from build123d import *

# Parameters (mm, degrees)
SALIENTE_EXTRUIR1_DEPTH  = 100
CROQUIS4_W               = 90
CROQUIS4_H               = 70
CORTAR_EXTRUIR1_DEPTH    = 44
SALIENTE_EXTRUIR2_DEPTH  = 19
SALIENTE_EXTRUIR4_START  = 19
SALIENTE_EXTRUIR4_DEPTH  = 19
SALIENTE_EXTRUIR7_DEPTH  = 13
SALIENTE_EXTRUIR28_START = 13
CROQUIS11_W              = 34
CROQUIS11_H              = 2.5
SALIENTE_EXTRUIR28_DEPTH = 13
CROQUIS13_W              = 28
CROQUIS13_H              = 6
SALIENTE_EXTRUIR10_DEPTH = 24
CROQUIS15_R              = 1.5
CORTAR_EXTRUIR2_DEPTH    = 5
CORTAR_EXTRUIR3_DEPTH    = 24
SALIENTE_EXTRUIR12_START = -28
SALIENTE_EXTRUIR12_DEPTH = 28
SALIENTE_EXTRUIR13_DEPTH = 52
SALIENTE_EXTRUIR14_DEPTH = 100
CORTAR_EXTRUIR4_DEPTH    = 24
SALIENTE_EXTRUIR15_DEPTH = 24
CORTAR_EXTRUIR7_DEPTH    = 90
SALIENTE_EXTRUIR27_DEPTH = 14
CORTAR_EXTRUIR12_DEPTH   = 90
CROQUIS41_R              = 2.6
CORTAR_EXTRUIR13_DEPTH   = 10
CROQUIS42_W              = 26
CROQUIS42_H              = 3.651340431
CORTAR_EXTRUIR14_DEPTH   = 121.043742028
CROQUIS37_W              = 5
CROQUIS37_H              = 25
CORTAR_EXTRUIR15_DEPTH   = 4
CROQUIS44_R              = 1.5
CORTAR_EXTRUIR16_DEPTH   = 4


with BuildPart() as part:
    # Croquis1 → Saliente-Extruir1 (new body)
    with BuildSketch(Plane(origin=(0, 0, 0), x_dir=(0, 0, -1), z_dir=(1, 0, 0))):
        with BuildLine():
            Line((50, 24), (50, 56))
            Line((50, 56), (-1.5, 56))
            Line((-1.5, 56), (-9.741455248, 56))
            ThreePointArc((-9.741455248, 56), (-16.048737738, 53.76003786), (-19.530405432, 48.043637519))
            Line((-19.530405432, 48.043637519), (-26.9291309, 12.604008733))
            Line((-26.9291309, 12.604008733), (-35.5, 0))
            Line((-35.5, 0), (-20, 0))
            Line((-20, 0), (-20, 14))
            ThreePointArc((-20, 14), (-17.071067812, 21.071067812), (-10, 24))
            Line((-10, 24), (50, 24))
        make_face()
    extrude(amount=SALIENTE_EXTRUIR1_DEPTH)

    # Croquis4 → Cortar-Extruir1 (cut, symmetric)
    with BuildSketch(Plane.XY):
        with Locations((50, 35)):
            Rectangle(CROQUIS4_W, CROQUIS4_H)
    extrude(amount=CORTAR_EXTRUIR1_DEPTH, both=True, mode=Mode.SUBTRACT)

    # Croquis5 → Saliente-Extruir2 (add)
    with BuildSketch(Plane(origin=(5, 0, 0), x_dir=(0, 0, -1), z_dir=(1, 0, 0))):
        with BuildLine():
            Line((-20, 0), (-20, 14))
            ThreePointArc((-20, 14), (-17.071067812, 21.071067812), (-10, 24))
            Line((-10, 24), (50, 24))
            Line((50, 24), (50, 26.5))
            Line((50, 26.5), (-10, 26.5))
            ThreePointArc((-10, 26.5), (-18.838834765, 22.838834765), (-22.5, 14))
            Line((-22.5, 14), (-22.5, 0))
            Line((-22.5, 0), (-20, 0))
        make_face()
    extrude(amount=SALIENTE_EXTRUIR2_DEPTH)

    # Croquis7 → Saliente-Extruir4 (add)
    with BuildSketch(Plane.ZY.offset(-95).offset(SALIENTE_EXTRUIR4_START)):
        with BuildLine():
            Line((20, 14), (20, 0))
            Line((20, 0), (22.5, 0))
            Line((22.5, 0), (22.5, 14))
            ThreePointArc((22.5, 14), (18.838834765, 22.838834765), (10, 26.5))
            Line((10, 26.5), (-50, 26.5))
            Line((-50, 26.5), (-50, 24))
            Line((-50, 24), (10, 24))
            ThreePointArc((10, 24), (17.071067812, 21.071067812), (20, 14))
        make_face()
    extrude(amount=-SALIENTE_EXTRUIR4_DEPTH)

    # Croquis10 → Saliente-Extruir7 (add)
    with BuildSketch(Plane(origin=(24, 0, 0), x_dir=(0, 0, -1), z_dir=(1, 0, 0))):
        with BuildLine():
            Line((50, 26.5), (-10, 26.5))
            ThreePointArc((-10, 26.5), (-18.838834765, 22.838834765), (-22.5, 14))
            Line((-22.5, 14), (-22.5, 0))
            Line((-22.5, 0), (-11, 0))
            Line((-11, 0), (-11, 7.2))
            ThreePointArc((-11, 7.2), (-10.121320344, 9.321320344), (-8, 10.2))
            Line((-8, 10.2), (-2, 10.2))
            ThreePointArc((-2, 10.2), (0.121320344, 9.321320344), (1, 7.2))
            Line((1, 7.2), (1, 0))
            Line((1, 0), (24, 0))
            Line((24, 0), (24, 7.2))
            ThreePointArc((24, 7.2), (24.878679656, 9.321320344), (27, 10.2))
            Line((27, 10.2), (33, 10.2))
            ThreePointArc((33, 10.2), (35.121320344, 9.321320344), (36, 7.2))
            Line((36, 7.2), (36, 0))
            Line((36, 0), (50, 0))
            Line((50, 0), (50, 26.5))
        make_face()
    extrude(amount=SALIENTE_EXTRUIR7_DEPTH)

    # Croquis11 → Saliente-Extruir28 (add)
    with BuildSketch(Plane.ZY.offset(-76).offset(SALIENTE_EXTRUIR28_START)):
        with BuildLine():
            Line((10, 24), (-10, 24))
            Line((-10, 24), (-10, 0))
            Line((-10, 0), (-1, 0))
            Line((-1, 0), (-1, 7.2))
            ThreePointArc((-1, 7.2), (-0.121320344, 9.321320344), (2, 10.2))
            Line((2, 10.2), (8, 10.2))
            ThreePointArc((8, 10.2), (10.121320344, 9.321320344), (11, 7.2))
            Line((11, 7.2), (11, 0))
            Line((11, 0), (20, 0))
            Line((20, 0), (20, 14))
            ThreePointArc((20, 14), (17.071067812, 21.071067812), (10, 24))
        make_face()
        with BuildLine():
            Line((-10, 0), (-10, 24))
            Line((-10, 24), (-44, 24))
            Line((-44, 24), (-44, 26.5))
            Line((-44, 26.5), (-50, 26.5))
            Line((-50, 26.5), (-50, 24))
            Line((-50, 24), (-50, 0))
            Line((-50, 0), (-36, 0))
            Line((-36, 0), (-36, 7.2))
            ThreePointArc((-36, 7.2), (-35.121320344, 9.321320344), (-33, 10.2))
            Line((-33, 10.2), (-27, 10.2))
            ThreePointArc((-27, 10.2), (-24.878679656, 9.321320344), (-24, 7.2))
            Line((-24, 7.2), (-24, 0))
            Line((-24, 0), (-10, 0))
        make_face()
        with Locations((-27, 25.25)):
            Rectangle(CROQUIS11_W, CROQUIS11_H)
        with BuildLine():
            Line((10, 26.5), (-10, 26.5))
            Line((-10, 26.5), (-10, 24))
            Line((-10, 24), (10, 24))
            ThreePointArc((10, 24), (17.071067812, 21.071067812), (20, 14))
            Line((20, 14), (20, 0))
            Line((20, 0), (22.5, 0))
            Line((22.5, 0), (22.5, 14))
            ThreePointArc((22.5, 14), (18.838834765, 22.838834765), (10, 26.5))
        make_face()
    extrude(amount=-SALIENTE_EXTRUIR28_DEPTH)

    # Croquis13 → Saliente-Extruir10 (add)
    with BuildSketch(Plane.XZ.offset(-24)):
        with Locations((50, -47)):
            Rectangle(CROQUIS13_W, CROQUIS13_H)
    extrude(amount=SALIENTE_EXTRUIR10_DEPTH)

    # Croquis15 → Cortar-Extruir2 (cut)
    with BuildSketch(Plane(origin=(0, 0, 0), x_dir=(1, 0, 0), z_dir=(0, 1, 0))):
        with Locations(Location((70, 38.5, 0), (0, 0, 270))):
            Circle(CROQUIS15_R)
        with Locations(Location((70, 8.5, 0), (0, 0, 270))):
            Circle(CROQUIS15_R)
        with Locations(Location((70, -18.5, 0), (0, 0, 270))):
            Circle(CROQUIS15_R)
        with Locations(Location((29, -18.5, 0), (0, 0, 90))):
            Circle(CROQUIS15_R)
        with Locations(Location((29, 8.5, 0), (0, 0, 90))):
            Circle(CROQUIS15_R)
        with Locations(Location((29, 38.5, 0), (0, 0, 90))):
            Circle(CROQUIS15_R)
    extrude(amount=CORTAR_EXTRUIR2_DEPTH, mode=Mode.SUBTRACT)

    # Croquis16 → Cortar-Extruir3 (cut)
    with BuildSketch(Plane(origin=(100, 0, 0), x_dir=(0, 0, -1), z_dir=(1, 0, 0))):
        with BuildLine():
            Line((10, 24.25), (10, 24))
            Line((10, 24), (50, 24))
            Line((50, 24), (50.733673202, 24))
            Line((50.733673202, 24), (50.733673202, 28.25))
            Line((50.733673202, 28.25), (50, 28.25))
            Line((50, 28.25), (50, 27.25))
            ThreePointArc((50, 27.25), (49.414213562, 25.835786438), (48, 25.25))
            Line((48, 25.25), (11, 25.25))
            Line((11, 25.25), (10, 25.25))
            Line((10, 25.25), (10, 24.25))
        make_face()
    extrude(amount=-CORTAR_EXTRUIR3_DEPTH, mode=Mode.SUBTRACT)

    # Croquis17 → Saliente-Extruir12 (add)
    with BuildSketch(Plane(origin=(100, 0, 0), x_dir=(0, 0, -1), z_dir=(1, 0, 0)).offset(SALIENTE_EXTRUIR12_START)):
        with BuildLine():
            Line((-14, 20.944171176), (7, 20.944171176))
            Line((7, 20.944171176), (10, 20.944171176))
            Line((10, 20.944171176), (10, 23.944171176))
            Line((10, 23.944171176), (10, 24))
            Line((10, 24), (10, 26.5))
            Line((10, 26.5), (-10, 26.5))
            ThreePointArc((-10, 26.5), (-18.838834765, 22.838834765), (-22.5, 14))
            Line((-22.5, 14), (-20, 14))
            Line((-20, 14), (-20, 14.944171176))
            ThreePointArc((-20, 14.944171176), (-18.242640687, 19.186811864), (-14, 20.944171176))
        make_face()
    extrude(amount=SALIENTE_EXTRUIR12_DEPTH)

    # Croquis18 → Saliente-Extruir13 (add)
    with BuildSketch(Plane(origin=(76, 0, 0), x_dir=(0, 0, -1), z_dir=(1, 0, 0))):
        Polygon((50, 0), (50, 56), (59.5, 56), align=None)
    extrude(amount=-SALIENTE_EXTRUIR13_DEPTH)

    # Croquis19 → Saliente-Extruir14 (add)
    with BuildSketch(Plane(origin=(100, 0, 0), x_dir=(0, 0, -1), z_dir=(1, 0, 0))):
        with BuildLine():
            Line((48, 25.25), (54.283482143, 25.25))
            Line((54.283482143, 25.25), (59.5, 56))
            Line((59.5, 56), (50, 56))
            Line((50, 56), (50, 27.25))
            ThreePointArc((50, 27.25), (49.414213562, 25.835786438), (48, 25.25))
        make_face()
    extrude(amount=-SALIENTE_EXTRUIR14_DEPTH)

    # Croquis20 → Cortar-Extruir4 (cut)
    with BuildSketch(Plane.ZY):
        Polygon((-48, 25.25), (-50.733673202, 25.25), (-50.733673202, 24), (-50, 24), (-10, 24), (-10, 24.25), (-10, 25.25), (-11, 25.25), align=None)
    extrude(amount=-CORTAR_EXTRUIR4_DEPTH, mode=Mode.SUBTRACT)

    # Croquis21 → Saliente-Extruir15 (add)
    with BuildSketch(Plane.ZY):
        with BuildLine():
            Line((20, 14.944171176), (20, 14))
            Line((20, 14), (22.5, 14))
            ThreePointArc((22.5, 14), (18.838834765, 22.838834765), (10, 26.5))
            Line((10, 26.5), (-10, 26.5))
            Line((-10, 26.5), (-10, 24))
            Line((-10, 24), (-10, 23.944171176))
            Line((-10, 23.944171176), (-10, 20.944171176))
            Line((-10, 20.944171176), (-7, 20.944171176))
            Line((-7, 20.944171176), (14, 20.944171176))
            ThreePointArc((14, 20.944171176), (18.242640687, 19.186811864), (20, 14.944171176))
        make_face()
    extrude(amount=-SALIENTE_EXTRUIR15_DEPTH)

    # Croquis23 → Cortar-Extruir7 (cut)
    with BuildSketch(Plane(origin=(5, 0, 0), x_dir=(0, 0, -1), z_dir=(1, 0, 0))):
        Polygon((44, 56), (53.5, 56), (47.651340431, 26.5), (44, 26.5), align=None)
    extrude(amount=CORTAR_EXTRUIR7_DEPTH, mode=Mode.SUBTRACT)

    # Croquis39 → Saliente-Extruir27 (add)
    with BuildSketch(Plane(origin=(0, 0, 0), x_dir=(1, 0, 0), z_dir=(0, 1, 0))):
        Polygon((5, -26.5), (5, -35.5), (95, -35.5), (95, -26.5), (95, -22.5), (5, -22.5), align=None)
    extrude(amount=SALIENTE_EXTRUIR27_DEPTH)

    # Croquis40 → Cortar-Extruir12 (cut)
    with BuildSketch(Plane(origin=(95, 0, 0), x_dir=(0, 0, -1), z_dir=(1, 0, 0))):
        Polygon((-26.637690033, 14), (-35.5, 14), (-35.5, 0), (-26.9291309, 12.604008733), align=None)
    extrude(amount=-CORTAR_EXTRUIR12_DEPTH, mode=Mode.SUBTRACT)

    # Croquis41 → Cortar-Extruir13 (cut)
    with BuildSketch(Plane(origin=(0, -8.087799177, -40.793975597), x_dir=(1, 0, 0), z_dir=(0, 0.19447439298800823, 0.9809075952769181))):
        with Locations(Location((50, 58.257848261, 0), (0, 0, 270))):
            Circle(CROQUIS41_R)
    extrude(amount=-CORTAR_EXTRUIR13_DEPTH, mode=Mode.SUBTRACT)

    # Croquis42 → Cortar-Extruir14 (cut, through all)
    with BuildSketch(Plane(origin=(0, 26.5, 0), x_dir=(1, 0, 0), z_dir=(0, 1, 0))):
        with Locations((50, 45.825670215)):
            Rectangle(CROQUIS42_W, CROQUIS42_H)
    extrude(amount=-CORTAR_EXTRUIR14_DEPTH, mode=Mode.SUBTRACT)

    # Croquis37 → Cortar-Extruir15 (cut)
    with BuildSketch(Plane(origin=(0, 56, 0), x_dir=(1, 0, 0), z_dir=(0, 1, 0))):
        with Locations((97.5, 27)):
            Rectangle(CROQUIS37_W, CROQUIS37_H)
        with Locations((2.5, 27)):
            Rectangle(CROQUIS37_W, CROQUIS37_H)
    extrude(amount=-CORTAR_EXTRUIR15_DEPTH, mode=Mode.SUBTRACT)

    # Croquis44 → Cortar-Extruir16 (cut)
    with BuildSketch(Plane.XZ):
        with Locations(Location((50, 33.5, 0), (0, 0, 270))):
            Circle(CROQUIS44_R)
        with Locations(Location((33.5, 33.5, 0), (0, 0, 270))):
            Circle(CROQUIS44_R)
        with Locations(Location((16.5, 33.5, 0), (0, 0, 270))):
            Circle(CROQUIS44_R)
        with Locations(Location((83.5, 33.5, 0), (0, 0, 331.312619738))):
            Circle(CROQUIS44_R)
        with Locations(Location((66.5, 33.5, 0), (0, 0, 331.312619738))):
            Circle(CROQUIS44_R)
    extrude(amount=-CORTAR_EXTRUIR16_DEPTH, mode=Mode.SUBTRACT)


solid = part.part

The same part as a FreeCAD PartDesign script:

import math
import FreeCAD as App
import Part
import Sketcher

V = App.Vector


def add_polygon(sketch, points):
    """Adds a closed chain of lines whose ends are joined by coincident constraints."""
    first, n = sketch.GeometryCount, len(points)
    for a, b in zip(points, points[1:] + points[:1]):
        sketch.addGeometry(Part.LineSegment(App.Vector(*a, 0), App.Vector(*b, 0)), False)
    for i in range(n):
        sketch.addConstraint(Sketcher.Constraint("Coincident", first + i, 2, first + (i + 1) % n, 1))

doc = App.newDocument("Part")
body = doc.addObject("PartDesign::Body", "Body")

# Sketch on YZ plane
sketch1 = body.newObject("Sketcher::SketchObject", "Sketch")
sketch1.AttachmentSupport = (doc.getObject("YZ_Plane"), [""])
sketch1.MapMode = "FlatFace"
sketch1.addGeometry(Part.LineSegment(V(24, -50, 0), V(56, -50, 0)), False)
sketch1.addGeometry(Part.LineSegment(V(56, -50, 0), V(56, 10, 0)), False)
sketch1.addGeometry(Part.ArcOfCircle(Part.Circle(V(46, 10, 0), V(0, 0, 1), 10), math.radians(0), math.radians(78)), False)
sketch1.addGeometry(Part.LineSegment(V(48, 20, 0), V(13, 27, 0)), False)
sketch1.addGeometry(Part.LineSegment(V(13, 27, 0), V(0, 36, 0)), False)
sketch1.addGeometry(Part.LineSegment(V(0, 36, 0), V(0, 20, 0)), False)
sketch1.addGeometry(Part.LineSegment(V(0, 20, 0), V(14, 20, 0)), False)
sketch1.addGeometry(Part.ArcOfCircle(Part.Circle(V(14, 10, 0), V(0, 0, 1), 10), math.radians(0), math.radians(90)), False)
sketch1.addGeometry(Part.LineSegment(V(24, 10, 0), V(24, -50, 0)), False)
sketch1.addConstraint(Sketcher.Constraint("Coincident", 0, 2, 1, 1))
sketch1.addConstraint(Sketcher.Constraint("Tangent", 1, 2, 2, 1))
sketch1.addConstraint(Sketcher.Constraint("Tangent", 2, 2, 3, 1))
sketch1.addConstraint(Sketcher.Constraint("Coincident", 3, 2, 4, 1))
sketch1.addConstraint(Sketcher.Constraint("Coincident", 4, 2, 5, 1))
sketch1.addConstraint(Sketcher.Constraint("Coincident", 5, 2, 6, 1))
sketch1.addConstraint(Sketcher.Constraint("Tangent", 6, 2, 7, 2))
sketch1.addConstraint(Sketcher.Constraint("Tangent", 7, 1, 8, 1))
sketch1.addConstraint(Sketcher.Constraint("Coincident", 8, 2, 0, 1))
sketch1.addConstraint(Sketcher.Constraint("Horizontal", 0))
sketch1.addConstraint(Sketcher.Constraint("Vertical", 1))
sketch1.addConstraint(Sketcher.Constraint("Vertical", 5))
sketch1.addConstraint(Sketcher.Constraint("Horizontal", 6))
sketch1.addConstraint(Sketcher.Constraint("Vertical", 8))
sketch1.addConstraint(Sketcher.Constraint("Equal", 2, 7))
sketch1.addConstraint(Sketcher.Constraint("PointOnObject", 4, 2, -2))
sketch1.addConstraint(Sketcher.Constraint("Radius", 2, 10.0))
sketch1.addConstraint(Sketcher.Constraint("DistanceX", 0, 1, 0, 2, 32.0))
sketch1.addConstraint(Sketcher.Constraint("DistanceX", 6, 1, 6, 2, 14.0))
sketch1.addConstraint(Sketcher.Constraint("DistanceY", 8, 2, 8, 1, 60.0))
sketch1.addConstraint(Sketcher.Constraint("DistanceY", 5, 2, 5, 1, 15.5))
sketch1.addConstraint(Sketcher.Constraint("DistanceY", -1, 1, 7, 3, 10.0))
sketch1.addConstraint(Sketcher.Constraint("DistanceY", 1, 1, 1, 2, 59.741455))
sketch1.addConstraint(Sketcher.Constraint("DistanceX", -1, 1, 3, 2, 12.604009))
sketch1.addConstraint(Sketcher.Constraint("DistanceY", -1, 1, 3, 2, 26.929131))
pad1 = body.newObject("PartDesign::Pad", "Pad")
pad1.Profile = sketch1
pad1.Length = 100

# Sketch on XY plane
sketch2 = body.newObject("Sketcher::SketchObject", "Sketch001")
sketch2.AttachmentSupport = (doc.getObject("XY_Plane"), [""])
sketch2.MapMode = "FlatFace"
add_polygon(sketch2, [(5, 70), (5, 0), (95, 0), (95, 70)])  # lines 0-3
sketch2.addConstraint(Sketcher.Constraint("Vertical", 0))
sketch2.addConstraint(Sketcher.Constraint("Horizontal", 1))
sketch2.addConstraint(Sketcher.Constraint("Vertical", 2))
sketch2.addConstraint(Sketcher.Constraint("Horizontal", 3))
sketch2.addConstraint(Sketcher.Constraint("PointOnObject", 0, 2, -1))
sketch2.addConstraint(Sketcher.Constraint("DistanceX", 1, 1, 1, 2, 90.0))
sketch2.addConstraint(Sketcher.Constraint("DistanceY", 0, 2, 0, 1, 70.0))
sketch2.addConstraint(Sketcher.Constraint("DistanceX", -1, 1, 0, 2, 5.0))
pocket1 = body.newObject("PartDesign::Pocket", "Pocket")
pocket1.Profile = sketch2
pocket1.Length = 88
pocket1.Midplane = True

# Sketch on YZ plane
sketch3 = body.newObject("Sketcher::SketchObject", "Sketch002")
sketch3.AttachmentSupport = (doc.getObject("YZ_Plane"), [""])
sketch3.MapMode = "FlatFace"
sketch3.AttachmentOffset = App.Placement(V(0, 0, 5), App.Rotation())
sketch3.addGeometry(Part.LineSegment(V(0, 20, 0), V(14, 20, 0)), False)
sketch3.addGeometry(Part.ArcOfCircle(Part.Circle(V(14, 10, 0), V(0, 0, 1), 10), math.radians(0), math.radians(90)), False)
sketch3.addGeometry(Part.LineSegment(V(24, 10, 0), V(24, -50, 0)), False)
sketch3.addGeometry(Part.LineSegment(V(24, -50, 0), V(26.5, -50, 0)), False)
sketch3.addGeometry(Part.LineSegment(V(26.5, -50, 0), V(26.5, 10, 0)), False)
sketch3.addGeometry(Part.ArcOfCircle(Part.Circle(V(14, 10, 0), V(0, 0, 1), 12.5), math.radians(0), math.radians(90)), False)
sketch3.addGeometry(Part.LineSegment(V(14, 22.5, 0), V(0, 22.5, 0)), False)
sketch3.addGeometry(Part.LineSegment(V(0, 22.5, 0), V(0, 20, 0)), False)
sketch3.addConstraint(Sketcher.Constraint("Tangent", 0, 2, 1, 2))
sketch3.addConstraint(Sketcher.Constraint("Tangent", 1, 1, 2, 1))
sketch3.addConstraint(Sketcher.Constraint("Coincident", 2, 2, 3, 1))
sketch3.addConstraint(Sketcher.Constraint("Coincident", 3, 2, 4, 1))
sketch3.addConstraint(Sketcher.Constraint("Tangent", 4, 2, 5, 1))
sketch3.addConstraint(Sketcher.Constraint("Tangent", 5, 2, 6, 1))
sketch3.addConstraint(Sketcher.Constraint("Coincident", 6, 2, 7, 1))
sketch3.addConstraint(Sketcher.Constraint("Coincident", 7, 2, 0, 1))
sketch3.addConstraint(Sketcher.Constraint("Horizontal", 0))
sketch3.addConstraint(Sketcher.Constraint("Vertical", 2))
sketch3.addConstraint(Sketcher.Constraint("Horizontal", 3))
sketch3.addConstraint(Sketcher.Constraint("Vertical", 4))
sketch3.addConstraint(Sketcher.Constraint("Horizontal", 6))
sketch3.addConstraint(Sketcher.Constraint("Vertical", 7))
sketch3.addConstraint(Sketcher.Constraint("Coincident", 5, 3, 1, 3))
sketch3.addConstraint(Sketcher.Constraint("PointOnObject", 6, 2, -2))
sketch3.addConstraint(Sketcher.Constraint("Radius", 1, 10.0))
sketch3.addConstraint(Sketcher.Constraint("Radius", 5, 12.5))
sketch3.addConstraint(Sketcher.Constraint("DistanceX", 0, 1, 0, 2, 14.0))
sketch3.addConstraint(Sketcher.Constraint("DistanceY", 2, 2, 2, 1, 60.0))
sketch3.addConstraint(Sketcher.Constraint("DistanceY", -1, 1, 1, 3, 10.0))
pad2 = body.newObject("PartDesign::Pad", "Pad001")
pad2.Profile = sketch3
pad2.Length = 19

# Sketch on YZ plane
sketch4 = body.newObject("Sketcher::SketchObject", "Sketch003")
sketch4.AttachmentSupport = (doc.getObject("YZ_Plane"), [""])
sketch4.MapMode = "FlatFace"
sketch4.AttachmentOffset = App.Placement(V(0, 0, 76), App.Rotation())
sketch4.addGeometry(Part.LineSegment(V(14, 20, 0), V(0, 20, 0)), False)
sketch4.addGeometry(Part.LineSegment(V(0, 20, 0), V(0, 22.5, 0)), False)
sketch4.addGeometry(Part.LineSegment(V(0, 22.5, 0), V(14, 22.5, 0)), False)
sketch4.addGeometry(Part.ArcOfCircle(Part.Circle(V(14, 10, 0), V(0, 0, 1), 12.5), math.radians(0), math.radians(90)), False)
sketch4.addGeometry(Part.LineSegment(V(26.5, 10, 0), V(26.5, -50, 0)), False)
sketch4.addGeometry(Part.LineSegment(V(26.5, -50, 0), V(24, -50, 0)), False)
sketch4.addGeometry(Part.LineSegment(V(24, -50, 0), V(24, 10, 0)), False)
sketch4.addGeometry(Part.ArcOfCircle(Part.Circle(V(14, 10, 0), V(0, 0, 1), 10), math.radians(0), math.radians(90)), False)
sketch4.addConstraint(Sketcher.Constraint("Coincident", 0, 2, 1, 1))
sketch4.addConstraint(Sketcher.Constraint("Coincident", 1, 2, 2, 1))
sketch4.addConstraint(Sketcher.Constraint("Tangent", 2, 2, 3, 2))
sketch4.addConstraint(Sketcher.Constraint("Tangent", 3, 1, 4, 1))
sketch4.addConstraint(Sketcher.Constraint("Coincident", 4, 2, 5, 1))
sketch4.addConstraint(Sketcher.Constraint("Coincident", 5, 2, 6, 1))
sketch4.addConstraint(Sketcher.Constraint("Tangent", 6, 2, 7, 1))
sketch4.addConstraint(Sketcher.Constraint("Tangent", 7, 2, 0, 1))
sketch4.addConstraint(Sketcher.Constraint("Horizontal", 0))
sketch4.addConstraint(Sketcher.Constraint("Vertical", 1))
sketch4.addConstraint(Sketcher.Constraint("Horizontal", 2))
sketch4.addConstraint(Sketcher.Constraint("Vertical", 4))
sketch4.addConstraint(Sketcher.Constraint("Horizontal", 5))
sketch4.addConstraint(Sketcher.Constraint("Vertical", 6))
sketch4.addConstraint(Sketcher.Constraint("Coincident", 7, 3, 3, 3))
sketch4.addConstraint(Sketcher.Constraint("PointOnObject", 0, 2, -2))
sketch4.addConstraint(Sketcher.Constraint("Radius", 7, 10.0))
sketch4.addConstraint(Sketcher.Constraint("Radius", 3, 12.5))
sketch4.addConstraint(Sketcher.Constraint("DistanceX", 0, 2, 0, 1, 14.0))
sketch4.addConstraint(Sketcher.Constraint("DistanceY", 4, 2, 4, 1, 60.0))
sketch4.addConstraint(Sketcher.Constraint("DistanceY", -1, 1, 3, 3, 10.0))
pad3 = body.newObject("PartDesign::Pad", "Pad002")
pad3.Profile = sketch4
pad3.Length = 19

# Sketch on YZ plane
sketch5 = body.newObject("Sketcher::SketchObject", "Sketch004")
sketch5.AttachmentSupport = (doc.getObject("YZ_Plane"), [""])
sketch5.MapMode = "FlatFace"
sketch5.AttachmentOffset = App.Placement(V(0, 0, 24), App.Rotation())
sketch5.addGeometry(Part.LineSegment(V(26.5, -50, 0), V(26.5, 10, 0)), False)
sketch5.addGeometry(Part.ArcOfCircle(Part.Circle(V(14, 10, 0), V(0, 0, 1), 12.5), math.radians(0), math.radians(90)), False)
sketch5.addGeometry(Part.LineSegment(V(14, 22.5, 0), V(0, 22.5, 0)), False)
sketch5.addGeometry(Part.LineSegment(V(0, 22.5, 0), V(0, 11, 0)), False)
sketch5.addGeometry(Part.LineSegment(V(0, 11, 0), V(7.2, 11, 0)), False)
sketch5.addGeometry(Part.ArcOfCircle(Part.Circle(V(7.2, 8, 0), V(0, 0, 1), 3), math.radians(0), math.radians(90)), False)
sketch5.addGeometry(Part.LineSegment(V(10.2, 8, 0), V(10.2, 2, 0)), False)
sketch5.addGeometry(Part.ArcOfCircle(Part.Circle(V(7.2, 2, 0), V(0, 0, 1), 3), math.radians(-90), math.radians(0)), False)
sketch5.addGeometry(Part.LineSegment(V(7.2, -1, 0), V(0, -1, 0)), False)
sketch5.addGeometry(Part.LineSegment(V(0, -1, 0), V(0, -24, 0)), False)
sketch5.addGeometry(Part.LineSegment(V(0, -24, 0), V(7.2, -24, 0)), False)
sketch5.addGeometry(Part.ArcOfCircle(Part.Circle(V(7.2, -27, 0), V(0, 0, 1), 3), math.radians(0), math.radians(90)), False)
sketch5.addGeometry(Part.LineSegment(V(10.2, -27, 0), V(10.2, -33, 0)), False)
sketch5.addGeometry(Part.ArcOfCircle(Part.Circle(V(7.2, -33, 0), V(0, 0, 1), 3), math.radians(-90), math.radians(0)), False)
sketch5.addGeometry(Part.LineSegment(V(7.2, -36, 0), V(0, -36, 0)), False)
sketch5.addGeometry(Part.LineSegment(V(0, -36, 0), V(0, -50, 0)), False)
sketch5.addGeometry(Part.LineSegment(V(0, -50, 0), V(26.5, -50, 0)), False)
sketch5.addConstraint(Sketcher.Constraint("Tangent", 0, 2, 1, 1))
sketch5.addConstraint(Sketcher.Constraint("Tangent", 1, 2, 2, 1))
sketch5.addConstraint(Sketcher.Constraint("Coincident", 2, 2, 3, 1))
sketch5.addConstraint(Sketcher.Constraint("Coincident", 3, 2, 4, 1))
sketch5.addConstraint(Sketcher.Constraint("Tangent", 4, 2, 5, 2))
sketch5.addConstraint(Sketcher.Constraint("Tangent", 5, 1, 6, 1))
sketch5.addConstraint(Sketcher.Constraint("Tangent", 6, 2, 7, 2))
sketch5.addConstraint(Sketcher.Constraint("Tangent", 7, 1, 8, 1))
sketch5.addConstraint(Sketcher.Constraint("Coincident", 8, 2, 9, 1))
sketch5.addConstraint(Sketcher.Constraint("Coincident", 9, 2, 10, 1))
sketch5.addConstraint(Sketcher.Constraint("Tangent", 10, 2, 11, 2))
sketch5.addConstraint(Sketcher.Constraint("Tangent", 11, 1, 12, 1))
sketch5.addConstraint(Sketcher.Constraint("Tangent", 12, 2, 13, 2))
sketch5.addConstraint(Sketcher.Constraint("Tangent", 13, 1, 14, 1))
sketch5.addConstraint(Sketcher.Constraint("Coincident", 14, 2, 15, 1))
sketch5.addConstraint(Sketcher.Constraint("Coincident", 15, 2, 16, 1))
sketch5.addConstraint(Sketcher.Constraint("Coincident", 16, 2, 0, 1))
sketch5.addConstraint(Sketcher.Constraint("Vertical", 0))
sketch5.addConstraint(Sketcher.Constraint("Horizontal", 2))
sketch5.addConstraint(Sketcher.Constraint("Vertical", 3))
sketch5.addConstraint(Sketcher.Constraint("Horizontal", 4))
sketch5.addConstraint(Sketcher.Constraint("Vertical", 6))
sketch5.addConstraint(Sketcher.Constraint("Horizontal", 8))
sketch5.addConstraint(Sketcher.Constraint("Vertical", 9))
sketch5.addConstraint(Sketcher.Constraint("Horizontal", 10))
sketch5.addConstraint(Sketcher.Constraint("Vertical", 12))
sketch5.addConstraint(Sketcher.Constraint("Horizontal", 14))
sketch5.addConstraint(Sketcher.Constraint("Vertical", 15))
sketch5.addConstraint(Sketcher.Constraint("Horizontal", 16))
sketch5.addConstraint(Sketcher.Constraint("Equal", 5, 7))
sketch5.addConstraint(Sketcher.Constraint("Equal", 7, 11))
sketch5.addConstraint(Sketcher.Constraint("Equal", 11, 13))
sketch5.addConstraint(Sketcher.Constraint("PointOnObject", 2, 2, -2))
sketch5.addConstraint(Sketcher.Constraint("PointOnObject", 8, 2, -2))
sketch5.addConstraint(Sketcher.Constraint("PointOnObject", 14, 2, -2))
sketch5.addConstraint(Sketcher.Constraint("Vertical", 7, 3, 11, 3))
sketch5.addConstraint(Sketcher.Constraint("Equal", 6, 12))
sketch5.addConstraint(Sketcher.Constraint("Equal", 2, 15))
sketch5.addConstraint(Sketcher.Constraint("Radius", 5, 3.0))
sketch5.addConstraint(Sketcher.Constraint("Radius", 1, 12.5))
sketch5.addConstraint(Sketcher.Constraint("DistanceX", 2, 2, 2, 1, 14.0))
sketch5.addConstraint(Sketcher.Constraint("DistanceY", 0, 1, 0, 2, 60.0))
sketch5.addConstraint(Sketcher.Constraint("DistanceY", 6, 2, 6, 1, 6.0))
sketch5.addConstraint(Sketcher.Constraint("DistanceY", 9, 2, 9, 1, 23.0))
sketch5.addConstraint(Sketcher.Constraint("DistanceX", 4, 1, 4, 2, 7.2))
sketch5.addConstraint(Sketcher.Constraint("DistanceY", -1, 1, 1, 3, 10.0))
pad4 = body.newObject("PartDesign::Pad", "Pad003")
pad4.Profile = sketch5
pad4.Length = 13

# Sketch on YZ plane
sketch6 = body.newObject("Sketcher::SketchObject", "Sketch005")
sketch6.AttachmentSupport = (doc.getObject("YZ_Plane"), [""])
sketch6.MapMode = "FlatFace"
sketch6.AttachmentOffset = App.Placement(V(0, 0, 63), App.Rotation())
sketch6.addGeometry(Part.LineSegment(V(26.5, -50, 0), V(0, -50, 0)), False)
sketch6.addGeometry(Part.LineSegment(V(0, -50, 0), V(0, -36, 0)), False)
sketch6.addGeometry(Part.LineSegment(V(0, -36, 0), V(7.2, -36, 0)), False)
sketch6.addGeometry(Part.ArcOfCircle(Part.Circle(V(7.2, -33, 0), V(0, 0, 1), 3), math.radians(-90), math.radians(0)), False)
sketch6.addGeometry(Part.LineSegment(V(10.2, -33, 0), V(10.2, -27, 0)), False)
sketch6.addGeometry(Part.ArcOfCircle(Part.Circle(V(7.2, -27, 0), V(0, 0, 1), 3), math.radians(0), math.radians(90)), False)
sketch6.addGeometry(Part.LineSegment(V(7.2, -24, 0), V(0, -24, 0)), False)
sketch6.addGeometry(Part.LineSegment(V(0, -24, 0), V(0, -1, 0)), False)
sketch6.addGeometry(Part.LineSegment(V(0, -1, 0), V(7.2, -1, 0)), False)
sketch6.addGeometry(Part.ArcOfCircle(Part.Circle(V(7.2, 2, 0), V(0, 0, 1), 3), math.radians(-90), math.radians(0)), False)
sketch6.addGeometry(Part.LineSegment(V(10.2, 2, 0), V(10.2, 8, 0)), False)
sketch6.addGeometry(Part.ArcOfCircle(Part.Circle(V(7.2, 8, 0), V(0, 0, 1), 3), math.radians(0), math.radians(90)), False)
sketch6.addGeometry(Part.LineSegment(V(7.2, 11, 0), V(0, 11, 0)), False)
sketch6.addGeometry(Part.LineSegment(V(0, 11, 0), V(0, 22.5, 0)), False)
sketch6.addGeometry(Part.LineSegment(V(0, 22.5, 0), V(14, 22.5, 0)), False)
sketch6.addGeometry(Part.ArcOfCircle(Part.Circle(V(14, 10, 0), V(0, 0, 1), 12.5), math.radians(0), math.radians(90)), False)
sketch6.addGeometry(Part.LineSegment(V(26.5, 10, 0), V(26.5, -50, 0)), False)
sketch6.addConstraint(Sketcher.Constraint("Coincident", 0, 2, 1, 1))
sketch6.addConstraint(Sketcher.Constraint("Coincident", 1, 2, 2, 1))
sketch6.addConstraint(Sketcher.Constraint("Tangent", 2, 2, 3, 1))
sketch6.addConstraint(Sketcher.Constraint("Tangent", 3, 2, 4, 1))
sketch6.addConstraint(Sketcher.Constraint("Tangent", 4, 2, 5, 1))
sketch6.addConstraint(Sketcher.Constraint("Tangent", 5, 2, 6, 1))
sketch6.addConstraint(Sketcher.Constraint("Coincident", 6, 2, 7, 1))
sketch6.addConstraint(Sketcher.Constraint("Coincident", 7, 2, 8, 1))
sketch6.addConstraint(Sketcher.Constraint("Tangent", 8, 2, 9, 1))
sketch6.addConstraint(Sketcher.Constraint("Tangent", 9, 2, 10, 1))
sketch6.addConstraint(Sketcher.Constraint("Tangent", 10, 2, 11, 1))
sketch6.addConstraint(Sketcher.Constraint("Tangent", 11, 2, 12, 1))
sketch6.addConstraint(Sketcher.Constraint("Coincident", 12, 2, 13, 1))
sketch6.addConstraint(Sketcher.Constraint("Coincident", 13, 2, 14, 1))
sketch6.addConstraint(Sketcher.Constraint("Tangent", 14, 2, 15, 2))
sketch6.addConstraint(Sketcher.Constraint("Tangent", 15, 1, 16, 1))
sketch6.addConstraint(Sketcher.Constraint("Coincident", 16, 2, 0, 1))
sketch6.addConstraint(Sketcher.Constraint("Horizontal", 0))
sketch6.addConstraint(Sketcher.Constraint("Vertical", 1))
sketch6.addConstraint(Sketcher.Constraint("Horizontal", 2))
sketch6.addConstraint(Sketcher.Constraint("Vertical", 4))
sketch6.addConstraint(Sketcher.Constraint("Horizontal", 6))
sketch6.addConstraint(Sketcher.Constraint("Vertical", 7))
sketch6.addConstraint(Sketcher.Constraint("Horizontal", 8))
sketch6.addConstraint(Sketcher.Constraint("Vertical", 10))
sketch6.addConstraint(Sketcher.Constraint("Horizontal", 12))
sketch6.addConstraint(Sketcher.Constraint("Vertical", 13))
sketch6.addConstraint(Sketcher.Constraint("Horizontal", 14))
sketch6.addConstraint(Sketcher.Constraint("Vertical", 16))
sketch6.addConstraint(Sketcher.Constraint("Equal", 3, 5))
sketch6.addConstraint(Sketcher.Constraint("Equal", 5, 9))
sketch6.addConstraint(Sketcher.Constraint("Equal", 9, 11))
sketch6.addConstraint(Sketcher.Constraint("PointOnObject", 0, 2, -2))
sketch6.addConstraint(Sketcher.Constraint("PointOnObject", 6, 2, -2))
sketch6.addConstraint(Sketcher.Constraint("PointOnObject", 12, 2, -2))
sketch6.addConstraint(Sketcher.Constraint("Vertical", 5, 3, 9, 3))
sketch6.addConstraint(Sketcher.Constraint("Equal", 14, 1))
sketch6.addConstraint(Sketcher.Constraint("Equal", 4, 10))
sketch6.addConstraint(Sketcher.Constraint("Radius", 3, 3.0))
sketch6.addConstraint(Sketcher.Constraint("Radius", 15, 12.5))
sketch6.addConstraint(Sketcher.Constraint("DistanceX", 14, 1, 14, 2, 14.0))
sketch6.addConstraint(Sketcher.Constraint("DistanceY", 4, 1, 4, 2, 6.0))
sketch6.addConstraint(Sketcher.Constraint("DistanceY", 7, 1, 7, 2, 23.0))
sketch6.addConstraint(Sketcher.Constraint("DistanceY", 16, 2, 16, 1, 60.0))
sketch6.addConstraint(Sketcher.Constraint("DistanceX", 2, 1, 2, 2, 7.2))
sketch6.addConstraint(Sketcher.Constraint("DistanceY", 3, 3, -1, 1, 33.0))
pad5 = body.newObject("PartDesign::Pad", "Pad004")
pad5.Profile = sketch6
pad5.Length = 13

# Sketch on XZ plane
sketch7 = body.newObject("Sketcher::SketchObject", "Sketch006")
sketch7.AttachmentSupport = (doc.getObject("XZ_Plane"), [""])
sketch7.MapMode = "FlatFace"
sketch7.AttachmentOffset = App.Placement(V(0, 0, -24), App.Rotation())
add_polygon(sketch7, [(36, -44), (36, -50), (64, -50), (64, -44)])  # lines 0-3
sketch7.addConstraint(Sketcher.Constraint("Vertical", 0))
sketch7.addConstraint(Sketcher.Constraint("Horizontal", 1))
sketch7.addConstraint(Sketcher.Constraint("Vertical", 2))
sketch7.addConstraint(Sketcher.Constraint("Horizontal", 3))
sketch7.addConstraint(Sketcher.Constraint("DistanceX", 1, 1, 1, 2, 28.0))
sketch7.addConstraint(Sketcher.Constraint("DistanceY", 0, 2, 0, 1, 6.0))
sketch7.addConstraint(Sketcher.Constraint("DistanceX", -1, 1, 0, 2, 36.0))
sketch7.addConstraint(Sketcher.Constraint("DistanceY", 0, 2, -1, 1, 50.0))
pad6 = body.newObject("PartDesign::Pad", "Pad005")
pad6.Profile = sketch7
pad6.Length = 24

# Sketch on XZ plane
sketch8 = body.newObject("Sketcher::SketchObject", "Sketch007")
sketch8.AttachmentSupport = (doc.getObject("XZ_Plane"), [""])
sketch8.MapMode = "FlatFace"
sketch8.addGeometry(Part.Circle(V(70, -38.5, 0), V(0, 0, 1), 1.5), False)
sketch8.addGeometry(Part.Circle(V(70, -8.5, 0), V(0, 0, 1), 1.5), False)
sketch8.addGeometry(Part.Circle(V(70, 18.5, 0), V(0, 0, 1), 1.5), False)
sketch8.addGeometry(Part.Circle(V(29, 18.5, 0), V(0, 0, 1), 1.5), False)
sketch8.addGeometry(Part.Circle(V(29, -8.5, 0), V(0, 0, 1), 1.5), False)
sketch8.addGeometry(Part.Circle(V(29, -38.5, 0), V(0, 0, 1), 1.5), False)
sketch8.addConstraint(Sketcher.Constraint("Equal", 0, 1))
sketch8.addConstraint(Sketcher.Constraint("Equal", 1, 2))
sketch8.addConstraint(Sketcher.Constraint("Equal", 2, 3))
sketch8.addConstraint(Sketcher.Constraint("Equal", 3, 4))
sketch8.addConstraint(Sketcher.Constraint("Equal", 4, 5))
sketch8.addConstraint(Sketcher.Constraint("Horizontal", 2, 3, 3, 3))
sketch8.addConstraint(Sketcher.Constraint("Horizontal", 1, 3, 4, 3))
sketch8.addConstraint(Sketcher.Constraint("Horizontal", 0, 3, 5, 3))
sketch8.addConstraint(Sketcher.Constraint("Vertical", 0, 3, 1, 3))
sketch8.addConstraint(Sketcher.Constraint("Vertical", 1, 3, 2, 3))
sketch8.addConstraint(Sketcher.Constraint("Vertical", 3, 3, 4, 3))
sketch8.addConstraint(Sketcher.Constraint("Vertical", 4, 3, 5, 3))
sketch8.addConstraint(Sketcher.Constraint("Diameter", 0, 3.0))
sketch8.addConstraint(Sketcher.Constraint("DistanceX", -1, 1, 0, 3, 70.0))
sketch8.addConstraint(Sketcher.Constraint("DistanceX", -1, 1, 3, 3, 29.0))
sketch8.addConstraint(Sketcher.Constraint("DistanceY", 0, 3, 1, 3, 30.0))
sketch8.addConstraint(Sketcher.Constraint("DistanceY", 1, 3, 2, 3, 27.0))
sketch8.addConstraint(Sketcher.Constraint("DistanceY", 0, 3, -1, 1, 38.5))
pocket2 = body.newObject("PartDesign::Pocket", "Pocket001")
pocket2.Profile = sketch8
pocket2.Length = 5

# Sketch on YZ plane
sketch9 = body.newObject("Sketcher::SketchObject", "Sketch008")
sketch9.AttachmentSupport = (doc.getObject("YZ_Plane"), [""])
sketch9.MapMode = "FlatFace"
sketch9.AttachmentOffset = App.Placement(V(0, 0, 100), App.Rotation())
sketch9.addGeometry(Part.LineSegment(V(24, -10, 0), V(24, -50.7, 0)), False)
sketch9.addGeometry(Part.LineSegment(V(24, -50.7, 0), V(28.2, -50.7, 0)), False)
sketch9.addGeometry(Part.LineSegment(V(28.2, -50.7, 0), V(28.2, -50, 0)), False)
sketch9.addGeometry(Part.LineSegment(V(28.2, -50, 0), V(27.2, -50, 0)), False)
sketch9.addGeometry(Part.ArcOfCircle(Part.Circle(V(27.3, -48, 0), V(0, 0, 1), 2), math.radians(-180), math.radians(-90)), False)
sketch9.addGeometry(Part.LineSegment(V(25.2, -48, 0), V(25.2, -10, 0)), False)
sketch9.addGeometry(Part.LineSegment(V(25.2, -10, 0), V(24, -10, 0)), False)
sketch9.addConstraint(Sketcher.Constraint("Coincident", 0, 2, 1, 1))
sketch9.addConstraint(Sketcher.Constraint("Coincident", 1, 2, 2, 1))
sketch9.addConstraint(Sketcher.Constraint("Coincident", 2, 2, 3, 1))
sketch9.addConstraint(Sketcher.Constraint("Tangent", 3, 2, 4, 2))
sketch9.addConstraint(Sketcher.Constraint("Tangent", 4, 1, 5, 1))
sketch9.addConstraint(Sketcher.Constraint("Coincident", 5, 2, 6, 1))
sketch9.addConstraint(Sketcher.Constraint("Coincident", 6, 2, 0, 1))
sketch9.addConstraint(Sketcher.Constraint("Vertical", 0))
sketch9.addConstraint(Sketcher.Constraint("Horizontal", 1))
sketch9.addConstraint(Sketcher.Constraint("Vertical", 2))
sketch9.addConstraint(Sketcher.Constraint("Horizontal", 3))
sketch9.addConstraint(Sketcher.Constraint("Vertical", 5))
sketch9.addConstraint(Sketcher.Constraint("Horizontal", 6))
sketch9.addConstraint(Sketcher.Constraint("Radius", 4, 2.0))
sketch9.addConstraint(Sketcher.Constraint("DistanceX", 3, 2, 3, 1, 1.0))
sketch9.addConstraint(Sketcher.Constraint("DistanceY", 5, 1, 5, 2, 38.0))
sketch9.addConstraint(Sketcher.Constraint("DistanceY", 4, 3, -1, 1, 48.0))
sketch9.addConstraint(Sketcher.Constraint("DistanceX", -1, 1, 0, 2, 24.0))
sketch9.addConstraint(Sketcher.Constraint("DistanceX", 1, 1, 1, 2, 4.25))
sketch9.addConstraint(Sketcher.Constraint("DistanceY", 0, 2, 0, 1, 40.733673))
pocket3 = body.newObject("PartDesign::Pocket", "Pocket002")
pocket3.Profile = sketch9
pocket3.Length = 24

# Sketch on YZ plane
sketch10 = body.newObject("Sketcher::SketchObject", "Sketch009")
sketch10.AttachmentSupport = (doc.getObject("YZ_Plane"), [""])
sketch10.MapMode = "FlatFace"
sketch10.AttachmentOffset = App.Placement(V(0, 0, 72), App.Rotation())
sketch10.addGeometry(Part.LineSegment(V(20.9, 14, 0), V(20.9, -10, 0)), False)
sketch10.addGeometry(Part.LineSegment(V(20.9, -10, 0), V(26.5, -10, 0)), False)
sketch10.addGeometry(Part.LineSegment(V(26.5, -10, 0), V(26.5, 10, 0)), False)
sketch10.addGeometry(Part.ArcOfCircle(Part.Circle(V(14, 10, 0), V(0, 0, 1), 12.5), math.radians(0), math.radians(90)), False)
sketch10.addGeometry(Part.LineSegment(V(14, 22.5, 0), V(14, 20, 0)), False)
sketch10.addGeometry(Part.LineSegment(V(14, 20, 0), V(14.9, 20, 0)), False)
sketch10.addGeometry(Part.ArcOfCircle(Part.Circle(V(14.9, 14, 0), V(0, 0, 1), 6), math.radians(0), math.radians(90)), False)
sketch10.addConstraint(Sketcher.Constraint("Coincident", 0, 2, 1, 1))
sketch10.addConstraint(Sketcher.Constraint("Coincident", 1, 2, 2, 1))
sketch10.addConstraint(Sketcher.Constraint("Tangent", 2, 2, 3, 1))
sketch10.addConstraint(Sketcher.Constraint("Coincident", 3, 2, 4, 1))
sketch10.addConstraint(Sketcher.Constraint("Coincident", 4, 2, 5, 1))
sketch10.addConstraint(Sketcher.Constraint("Tangent", 5, 2, 6, 2))
sketch10.addConstraint(Sketcher.Constraint("Tangent", 6, 1, 0, 1))
sketch10.addConstraint(Sketcher.Constraint("Vertical", 0))
sketch10.addConstraint(Sketcher.Constraint("Horizontal", 1))
sketch10.addConstraint(Sketcher.Constraint("Vertical", 2))
sketch10.addConstraint(Sketcher.Constraint("Vertical", 4))
sketch10.addConstraint(Sketcher.Constraint("Horizontal", 5))
sketch10.addConstraint(Sketcher.Constraint("Radius", 6, 6.0))
sketch10.addConstraint(Sketcher.Constraint("Radius", 3, 12.5))
sketch10.addConstraint(Sketcher.Constraint("DistanceY", 0, 2, 0, 1, 24.0))
sketch10.addConstraint(Sketcher.Constraint("DistanceY", 2, 1, 2, 2, 20.0))
sketch10.addConstraint(Sketcher.Constraint("DistanceX", -1, 1, 3, 3, 14.0))
sketch10.addConstraint(Sketcher.Constraint("DistanceY", -1, 1, 3, 3, 10.0))
sketch10.addConstraint(Sketcher.Constraint("DistanceX", -1, 1, 3, 2, 14.0))
sketch10.addConstraint(Sketcher.Constraint("DistanceX", 1, 1, 1, 2, 5.555829))
pad7 = body.newObject("PartDesign::Pad", "Pad006")
pad7.Profile = sketch10
pad7.Length = 28

# Sketch on YZ plane
sketch11 = body.newObject("Sketcher::SketchObject", "Sketch010")
sketch11.AttachmentSupport = (doc.getObject("YZ_Plane"), [""])
sketch11.MapMode = "FlatFace"
sketch11.AttachmentOffset = App.Placement(V(0, 0, 76), App.Rotation())
add_polygon(sketch11, [(56, -50), (0, -50), (56, -60)])  # lines 0-2
sketch11.addConstraint(Sketcher.Constraint("Horizontal", 0))
sketch11.addConstraint(Sketcher.Constraint("Vertical", 2))
sketch11.addConstraint(Sketcher.Constraint("PointOnObject", 0, 2, -2))
sketch11.addConstraint(Sketcher.Constraint("DistanceX", 0, 2, 0, 1, 56.0))
sketch11.addConstraint(Sketcher.Constraint("DistanceY", 2, 1, 2, 2, 9.5))
sketch11.addConstraint(Sketcher.Constraint("DistanceY", 0, 2, -1, 1, 50.0))
pad8 = body.newObject("PartDesign::Pad", "Pad007")
pad8.Profile = sketch11
pad8.Length = 52
pad8.Reversed = True

# Sketch on YZ plane
sketch12 = body.newObject("Sketcher::SketchObject", "Sketch011")
sketch12.AttachmentSupport = (doc.getObject("YZ_Plane"), [""])
sketch12.MapMode = "FlatFace"
sketch12.AttachmentOffset = App.Placement(V(0, 0, 100), App.Rotation())
sketch12.addGeometry(Part.LineSegment(V(25.2, -48, 0), V(25.2, -54.3, 0)), False)
sketch12.addGeometry(Part.LineSegment(V(25.2, -54.3, 0), V(56, -59.5, 0)), False)
sketch12.addGeometry(Part.LineSegment(V(56, -59.5, 0), V(56, -50, 0)), False)
sketch12.addGeometry(Part.LineSegment(V(56, -50, 0), V(27.2, -50, 0)), False)
sketch12.addGeometry(Part.ArcOfCircle(Part.Circle(V(27.3, -48, 0), V(0, 0, 1), 2), math.radians(-180), math.radians(-90)), False)
sketch12.addConstraint(Sketcher.Constraint("Coincident", 0, 2, 1, 1))
sketch12.addConstraint(Sketcher.Constraint("Coincident", 1, 2, 2, 1))
sketch12.addConstraint(Sketcher.Constraint("Coincident", 2, 2, 3, 1))
sketch12.addConstraint(Sketcher.Constraint("Tangent", 3, 2, 4, 2))
sketch12.addConstraint(Sketcher.Constraint("Tangent", 4, 1, 0, 1))
sketch12.addConstraint(Sketcher.Constraint("Vertical", 0))
sketch12.addConstraint(Sketcher.Constraint("Vertical", 2))
sketch12.addConstraint(Sketcher.Constraint("Horizontal", 3))
sketch12.addConstraint(Sketcher.Constraint("Radius", 4, 2.0))
sketch12.addConstraint(Sketcher.Constraint("DistanceY", 2, 1, 2, 2, 9.5))
sketch12.addConstraint(Sketcher.Constraint("DistanceY", 4, 3, -1, 1, 48.0))
sketch12.addConstraint(Sketcher.Constraint("DistanceX", -1, 1, 1, 2, 56.0))
sketch12.addConstraint(Sketcher.Constraint("DistanceX", 3, 2, 3, 1, 28.75))
sketch12.addConstraint(Sketcher.Constraint("DistanceY", 0, 2, 0, 1, 6.283482))
pad9 = body.newObject("PartDesign::Pad", "Pad008")
pad9.Profile = sketch12
pad9.Length = 100
pad9.Reversed = True

# Sketch on YZ plane
sketch13 = body.newObject("Sketcher::SketchObject", "Sketch012")
sketch13.AttachmentSupport = (doc.getObject("YZ_Plane"), [""])
sketch13.MapMode = "FlatFace"
add_polygon(sketch13, [(25.2, -50.7), (24, -50.7), (24, -10), (25.2, -10)])  # lines 0-3
sketch13.addConstraint(Sketcher.Constraint("Horizontal", 0))
sketch13.addConstraint(Sketcher.Constraint("Vertical", 1))
sketch13.addConstraint(Sketcher.Constraint("Horizontal", 2))
sketch13.addConstraint(Sketcher.Constraint("Vertical", 3))
sketch13.addConstraint(Sketcher.Constraint("DistanceX", -1, 1, 0, 2, 24.0))
sketch13.addConstraint(Sketcher.Constraint("DistanceY", 1, 2, -1, 1, 10.0))
sketch13.addConstraint(Sketcher.Constraint("DistanceX", 0, 2, 0, 1, 1.25))
sketch13.addConstraint(Sketcher.Constraint("DistanceY", 1, 1, 1, 2, 40.733673))
pocket4 = body.newObject("PartDesign::Pocket", "Pocket003")
pocket4.Profile = sketch13
pocket4.Length = 24
pocket4.Reversed = True

# Sketch on YZ plane
sketch14 = body.newObject("Sketcher::SketchObject", "Sketch013")
sketch14.AttachmentSupport = (doc.getObject("YZ_Plane"), [""])
sketch14.MapMode = "FlatFace"
sketch14.addGeometry(Part.LineSegment(V(14.9, 20, 0), V(14, 20, 0)), False)
sketch14.addGeometry(Part.LineSegment(V(14, 20, 0), V(14, 22.5, 0)), False)
sketch14.addGeometry(Part.ArcOfCircle(Part.Circle(V(14, 10, 0), V(0, 0, 1), 12.5), math.radians(0), math.radians(90)), False)
sketch14.addGeometry(Part.LineSegment(V(26.5, 10, 0), V(26.5, -10, 0)), False)
sketch14.addGeometry(Part.LineSegment(V(26.5, -10, 0), V(20.9, -10, 0)), False)
sketch14.addGeometry(Part.LineSegment(V(20.9, -10, 0), V(20.9, 14, 0)), False)
sketch14.addGeometry(Part.ArcOfCircle(Part.Circle(V(14.9, 14, 0), V(0, 0, 1), 6), math.radians(0), math.radians(90)), False)
sketch14.addConstraint(Sketcher.Constraint("Coincident", 0, 2, 1, 1))
sketch14.addConstraint(Sketcher.Constraint("Coincident", 1, 2, 2, 2))
sketch14.addConstraint(Sketcher.Constraint("Tangent", 2, 1, 3, 1))
sketch14.addConstraint(Sketcher.Constraint("Coincident", 3, 2, 4, 1))
sketch14.addConstraint(Sketcher.Constraint("Coincident", 4, 2, 5, 1))
sketch14.addConstraint(Sketcher.Constraint("Tangent", 5, 2, 6, 1))
sketch14.addConstraint(Sketcher.Constraint("Tangent", 6, 2, 0, 1))
sketch14.addConstraint(Sketcher.Constraint("Horizontal", 0))
sketch14.addConstraint(Sketcher.Constraint("Vertical", 1))
sketch14.addConstraint(Sketcher.Constraint("Vertical", 3))
sketch14.addConstraint(Sketcher.Constraint("Horizontal", 4))
sketch14.addConstraint(Sketcher.Constraint("Vertical", 5))
sketch14.addConstraint(Sketcher.Constraint("Vertical", 2, 3, 0, 2))
sketch14.addConstraint(Sketcher.Constraint("Radius", 6, 6.0))
sketch14.addConstraint(Sketcher.Constraint("Radius", 2, 12.5))
sketch14.addConstraint(Sketcher.Constraint("DistanceY", 3, 2, 3, 1, 20.0))
sketch14.addConstraint(Sketcher.Constraint("DistanceY", 5, 1, 5, 2, 24.0))
sketch14.addConstraint(Sketcher.Constraint("DistanceX", -1, 1, 2, 3, 14.0))
sketch14.addConstraint(Sketcher.Constraint("DistanceY", -1, 1, 2, 3, 10.0))
sketch14.addConstraint(Sketcher.Constraint("DistanceX", 0, 2, 0, 1, 0.944171))
pad10 = body.newObject("PartDesign::Pad", "Pad009")
pad10.Profile = sketch14
pad10.Length = 24

# Sketch on YZ plane
sketch15 = body.newObject("Sketcher::SketchObject", "Sketch014")
sketch15.AttachmentSupport = (doc.getObject("YZ_Plane"), [""])
sketch15.MapMode = "FlatFace"
sketch15.AttachmentOffset = App.Placement(V(0, 0, 5), App.Rotation())
add_polygon(sketch15, [(56, -53.5), (56, -44), (26.5, -44), (26.5, -47.7)])  # lines 0-3
sketch15.addConstraint(Sketcher.Constraint("Vertical", 0))
sketch15.addConstraint(Sketcher.Constraint("Horizontal", 1))
sketch15.addConstraint(Sketcher.Constraint("Vertical", 2))
sketch15.addConstraint(Sketcher.Constraint("DistanceX", 1, 2, 1, 1, 29.5))
sketch15.addConstraint(Sketcher.Constraint("DistanceY", 0, 1, 0, 2, 9.5))
sketch15.addConstraint(Sketcher.Constraint("DistanceX", -1, 1, 0, 2, 56.0))
sketch15.addConstraint(Sketcher.Constraint("DistanceY", 0, 2, -1, 1, 44.0))
sketch15.addConstraint(Sketcher.Constraint("DistanceY", 2, 2, 2, 1, 3.65134))
pocket5 = body.newObject("PartDesign::Pocket", "Pocket004")
pocket5.Profile = sketch15
pocket5.Length = 90
pocket5.Reversed = True

# Sketch on XZ plane
sketch16 = body.newObject("Sketcher::SketchObject", "Sketch015")
sketch16.AttachmentSupport = (doc.getObject("XZ_Plane"), [""])
sketch16.MapMode = "FlatFace"
add_polygon(sketch16, [(5, 36), (95, 36), (95, 22), (5, 22)])  # lines 0-3
sketch16.addConstraint(Sketcher.Constraint("Horizontal", 0))
sketch16.addConstraint(Sketcher.Constraint("Vertical", 1))
sketch16.addConstraint(Sketcher.Constraint("Horizontal", 2))
sketch16.addConstraint(Sketcher.Constraint("Vertical", 3))
sketch16.addConstraint(Sketcher.Constraint("DistanceX", 0, 1, 0, 2, 90.0))
sketch16.addConstraint(Sketcher.Constraint("DistanceY", 1, 2, 1, 1, 13.0))
sketch16.addConstraint(Sketcher.Constraint("DistanceX", -1, 1, 0, 2, 95.0))
sketch16.addConstraint(Sketcher.Constraint("DistanceY", -1, 1, 0, 2, 35.5))
pad11 = body.newObject("PartDesign::Pad", "Pad010")
pad11.Profile = sketch16
pad11.Length = 14
pad11.Reversed = True

# Sketch on YZ plane
sketch17 = body.newObject("Sketcher::SketchObject", "Sketch016")
sketch17.AttachmentSupport = (doc.getObject("YZ_Plane"), [""])
sketch17.MapMode = "FlatFace"
sketch17.AttachmentOffset = App.Placement(V(0, 0, 95), App.Rotation())
add_polygon(sketch17, [(14, 26.6), (14, 35.5), (0, 35.5), (12.6, 26.9)])  # lines 0-3
sketch17.addConstraint(Sketcher.Constraint("Vertical", 0))
sketch17.addConstraint(Sketcher.Constraint("Horizontal", 1))
sketch17.addConstraint(Sketcher.Constraint("PointOnObject", 1, 2, -2))
sketch17.addConstraint(Sketcher.Constraint("DistanceX", 1, 2, 1, 1, 14.0))
sketch17.addConstraint(Sketcher.Constraint("DistanceY", -1, 1, 0, 2, 35.5))
sketch17.addConstraint(Sketcher.Constraint("DistanceY", 0, 1, 0, 2, 8.86231))
sketch17.addConstraint(Sketcher.Constraint("Distance", 3, 1.426089))
sketch17.addConstraint(Sketcher.Constraint("DistanceX", -1, 1, 2, 2, 12.604009))
pocket6 = body.newObject("PartDesign::Pocket", "Pocket005")
pocket6.Profile = sketch17
pocket6.Length = 90

# Sketch on an angled plane
sketch18 = body.newObject("Sketcher::SketchObject", "Sketch017")
sketch18.Placement = App.Placement(V(0, -8.087799, -40.793976), App.Rotation(V(1, 0, 0), V(0, 0.980907595, -0.194474393), V(0, 0.194474393, 0.980907595), "ZXY"))
sketch18.addGeometry(Part.Circle(V(50, 58.3, 0), V(0, 0, 1), 2.6), False)
sketch18.addConstraint(Sketcher.Constraint("Diameter", 0, 5.2))
sketch18.addConstraint(Sketcher.Constraint("DistanceX", -1, 1, 0, 3, 50.0))
sketch18.addConstraint(Sketcher.Constraint("DistanceY", -1, 1, 0, 3, 58.257848))
pocket7 = body.newObject("PartDesign::Pocket", "Pocket006")
pocket7.Profile = sketch18
pocket7.Length = 10

# Sketch on XZ plane
sketch19 = body.newObject("Sketcher::SketchObject", "Sketch018")
sketch19.AttachmentSupport = (doc.getObject("XZ_Plane"), [""])
sketch19.MapMode = "FlatFace"
sketch19.AttachmentOffset = App.Placement(V(0, 0, -26.5), App.Rotation())
add_polygon(sketch19, [(37, -47.7), (37, -44), (63, -44), (63, -47.7)])  # lines 0-3
sketch19.addConstraint(Sketcher.Constraint("Vertical", 0))
sketch19.addConstraint(Sketcher.Constraint("Horizontal", 1))
sketch19.addConstraint(Sketcher.Constraint("Vertical", 2))
sketch19.addConstraint(Sketcher.Constraint("Horizontal", 3))
sketch19.addConstraint(Sketcher.Constraint("DistanceX", 1, 1, 1, 2, 26.0))
sketch19.addConstraint(Sketcher.Constraint("DistanceX", -1, 1, 0, 2, 37.0))
sketch19.addConstraint(Sketcher.Constraint("DistanceY", 0, 2, -1, 1, 44.0))
sketch19.addConstraint(Sketcher.Constraint("DistanceY", 0, 1, 0, 2, 3.65134))
pocket8 = body.newObject("PartDesign::Pocket", "Pocket007")
pocket8.Profile = sketch19
pocket8.Type = "ThroughAll"
pocket8.Reversed = True

# Sketch on XZ plane
sketch20 = body.newObject("Sketcher::SketchObject", "Sketch019")
sketch20.AttachmentSupport = (doc.getObject("XZ_Plane"), [""])
sketch20.MapMode = "FlatFace"
sketch20.AttachmentOffset = App.Placement(V(0, 0, -56), App.Rotation())
add_polygon(sketch20, [(95, -40), (95, -14), (100, -14), (100, -40)])  # lines 0-3
add_polygon(sketch20, [(0, -40), (0, -14), (5, -14), (5, -40)])  # lines 4-7
sketch20.addConstraint(Sketcher.Constraint("Vertical", 0))
sketch20.addConstraint(Sketcher.Constraint("Horizontal", 1))
sketch20.addConstraint(Sketcher.Constraint("Vertical", 2))
sketch20.addConstraint(Sketcher.Constraint("Horizontal", 3))
sketch20.addConstraint(Sketcher.Constraint("Vertical", 4))
sketch20.addConstraint(Sketcher.Constraint("Horizontal", 5))
sketch20.addConstraint(Sketcher.Constraint("Vertical", 6))
sketch20.addConstraint(Sketcher.Constraint("Horizontal", 7))
sketch20.addConstraint(Sketcher.Constraint("PointOnObject", 4, 2, -2))
sketch20.addConstraint(Sketcher.Constraint("Horizontal", 1, 2, 4, 2))
sketch20.addConstraint(Sketcher.Constraint("Horizontal", 3, 2, 6, 2))
sketch20.addConstraint(Sketcher.Constraint("Equal", 3, 5))
sketch20.addConstraint(Sketcher.Constraint("DistanceX", 1, 1, 1, 2, 5.0))
sketch20.addConstraint(Sketcher.Constraint("DistanceY", 0, 1, 0, 2, 25.0))
sketch20.addConstraint(Sketcher.Constraint("DistanceX", -1, 1, 0, 2, 95.0))
sketch20.addConstraint(Sketcher.Constraint("DistanceY", 0, 2, -1, 1, 14.5))
pocket9 = body.newObject("PartDesign::Pocket", "Pocket008")
pocket9.Profile = sketch20
pocket9.Length = 4
pocket9.Reversed = True

# Sketch on XZ plane
sketch21 = body.newObject("Sketcher::SketchObject", "Sketch020")
sketch21.AttachmentSupport = (doc.getObject("XZ_Plane"), [""])
sketch21.MapMode = "FlatFace"
sketch21.addGeometry(Part.Circle(V(50, 33.5, 0), V(0, 0, 1), 1.5), False)
sketch21.addGeometry(Part.Circle(V(33.5, 33.5, 0), V(0, 0, 1), 1.5), False)
sketch21.addGeometry(Part.Circle(V(16.5, 33.5, 0), V(0, 0, 1), 1.5), False)
sketch21.addGeometry(Part.Circle(V(83.5, 33.5, 0), V(0, 0, 1), 1.5), False)
sketch21.addGeometry(Part.Circle(V(66.5, 33.5, 0), V(0, 0, 1), 1.5), False)
sketch21.addConstraint(Sketcher.Constraint("Equal", 0, 1))
sketch21.addConstraint(Sketcher.Constraint("Equal", 1, 2))
sketch21.addConstraint(Sketcher.Constraint("Equal", 2, 3))
sketch21.addConstraint(Sketcher.Constraint("Equal", 3, 4))
sketch21.addConstraint(Sketcher.Constraint("Horizontal", 0, 3, 1, 3))
sketch21.addConstraint(Sketcher.Constraint("Horizontal", 1, 3, 2, 3))
sketch21.addConstraint(Sketcher.Constraint("Horizontal", 2, 3, 3, 3))
sketch21.addConstraint(Sketcher.Constraint("Horizontal", 3, 3, 4, 3))
sketch21.addConstraint(Sketcher.Constraint("Diameter", 0, 3.0))
sketch21.addConstraint(Sketcher.Constraint("DistanceX", -1, 1, 0, 3, 50.0))
sketch21.addConstraint(Sketcher.Constraint("DistanceX", 2, 3, 1, 3, 17.0))
sketch21.addConstraint(Sketcher.Constraint("DistanceX", 1, 3, 3, 3, 50.0))
sketch21.addConstraint(Sketcher.Constraint("DistanceX", 4, 3, 3, 3, 17.0))
sketch21.addConstraint(Sketcher.Constraint("DistanceY", -1, 1, 0, 3, 33.5))
sketch21.addConstraint(Sketcher.Constraint("DistanceX", -1, 1, 1, 3, 33.5))
pocket10 = body.newObject("PartDesign::Pocket", "Pocket009")
pocket10.Profile = sketch21
pocket10.Length = 4

doc.recompute()
